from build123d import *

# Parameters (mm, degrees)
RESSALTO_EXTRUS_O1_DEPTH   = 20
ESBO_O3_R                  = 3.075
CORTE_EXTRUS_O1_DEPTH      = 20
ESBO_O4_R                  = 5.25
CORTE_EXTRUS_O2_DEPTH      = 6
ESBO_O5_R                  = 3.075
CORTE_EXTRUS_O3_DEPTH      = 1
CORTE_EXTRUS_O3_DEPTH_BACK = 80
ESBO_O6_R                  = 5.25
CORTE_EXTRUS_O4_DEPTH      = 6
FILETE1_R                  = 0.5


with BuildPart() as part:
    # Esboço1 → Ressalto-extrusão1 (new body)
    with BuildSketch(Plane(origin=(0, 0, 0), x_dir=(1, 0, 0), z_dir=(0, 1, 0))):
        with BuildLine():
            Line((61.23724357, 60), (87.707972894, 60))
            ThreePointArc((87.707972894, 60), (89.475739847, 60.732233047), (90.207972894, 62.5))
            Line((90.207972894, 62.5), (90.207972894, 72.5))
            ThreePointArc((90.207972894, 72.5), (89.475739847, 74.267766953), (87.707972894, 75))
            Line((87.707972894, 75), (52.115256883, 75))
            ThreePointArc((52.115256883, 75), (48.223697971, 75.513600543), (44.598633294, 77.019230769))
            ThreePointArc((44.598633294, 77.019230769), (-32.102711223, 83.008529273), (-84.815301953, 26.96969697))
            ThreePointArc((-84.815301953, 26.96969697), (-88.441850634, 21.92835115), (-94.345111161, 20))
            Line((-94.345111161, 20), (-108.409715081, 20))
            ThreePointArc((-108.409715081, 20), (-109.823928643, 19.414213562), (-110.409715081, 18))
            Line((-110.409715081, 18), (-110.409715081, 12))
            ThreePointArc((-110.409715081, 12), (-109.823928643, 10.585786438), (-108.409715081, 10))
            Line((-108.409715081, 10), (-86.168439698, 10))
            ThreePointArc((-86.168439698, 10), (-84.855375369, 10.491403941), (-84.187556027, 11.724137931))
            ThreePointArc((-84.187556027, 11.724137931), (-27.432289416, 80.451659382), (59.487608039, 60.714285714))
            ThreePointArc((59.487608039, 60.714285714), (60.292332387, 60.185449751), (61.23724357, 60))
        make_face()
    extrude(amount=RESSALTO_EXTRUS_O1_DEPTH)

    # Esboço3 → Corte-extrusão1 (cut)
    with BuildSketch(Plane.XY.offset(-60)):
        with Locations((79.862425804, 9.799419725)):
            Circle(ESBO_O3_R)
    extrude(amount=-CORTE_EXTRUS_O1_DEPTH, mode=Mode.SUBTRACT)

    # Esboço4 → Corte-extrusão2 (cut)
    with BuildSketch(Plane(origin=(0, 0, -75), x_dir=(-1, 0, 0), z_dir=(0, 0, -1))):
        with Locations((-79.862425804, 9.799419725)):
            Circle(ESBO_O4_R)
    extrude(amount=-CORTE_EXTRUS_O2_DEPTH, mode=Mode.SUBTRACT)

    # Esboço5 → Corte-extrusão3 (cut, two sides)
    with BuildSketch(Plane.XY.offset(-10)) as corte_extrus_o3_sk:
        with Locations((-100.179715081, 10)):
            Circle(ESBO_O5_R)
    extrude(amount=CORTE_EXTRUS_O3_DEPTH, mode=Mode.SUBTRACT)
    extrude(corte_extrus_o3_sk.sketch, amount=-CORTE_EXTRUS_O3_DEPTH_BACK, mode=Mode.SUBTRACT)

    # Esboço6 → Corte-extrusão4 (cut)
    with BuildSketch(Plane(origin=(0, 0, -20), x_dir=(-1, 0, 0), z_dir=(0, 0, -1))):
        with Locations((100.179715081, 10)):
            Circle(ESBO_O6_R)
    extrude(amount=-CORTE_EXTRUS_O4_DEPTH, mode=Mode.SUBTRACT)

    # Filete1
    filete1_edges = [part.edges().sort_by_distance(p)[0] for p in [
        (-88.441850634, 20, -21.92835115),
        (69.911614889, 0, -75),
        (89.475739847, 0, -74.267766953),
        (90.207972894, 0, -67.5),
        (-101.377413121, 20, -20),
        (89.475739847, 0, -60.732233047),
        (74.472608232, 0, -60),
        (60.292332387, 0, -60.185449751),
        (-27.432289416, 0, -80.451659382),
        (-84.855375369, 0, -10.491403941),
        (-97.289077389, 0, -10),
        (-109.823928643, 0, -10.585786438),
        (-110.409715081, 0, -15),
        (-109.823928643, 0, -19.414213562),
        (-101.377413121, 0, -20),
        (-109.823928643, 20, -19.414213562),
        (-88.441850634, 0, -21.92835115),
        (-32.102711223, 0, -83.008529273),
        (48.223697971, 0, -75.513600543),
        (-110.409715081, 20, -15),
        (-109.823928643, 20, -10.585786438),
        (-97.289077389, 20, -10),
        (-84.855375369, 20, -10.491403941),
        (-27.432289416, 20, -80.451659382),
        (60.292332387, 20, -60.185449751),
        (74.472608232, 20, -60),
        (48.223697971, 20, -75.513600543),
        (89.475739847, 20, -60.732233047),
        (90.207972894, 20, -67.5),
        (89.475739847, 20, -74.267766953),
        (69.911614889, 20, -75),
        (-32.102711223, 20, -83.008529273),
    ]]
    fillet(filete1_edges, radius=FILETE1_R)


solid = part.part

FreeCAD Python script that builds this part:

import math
import FreeCAD as App
import Part
import Sketcher
from FreeCAD import Vector
Q = App.Units.Quantity


def edges_at(feature, points):
    """Names of the edges that pass closest to the given points."""
    edges = feature.Shape.Edges
    near = lambda p: min(range(len(edges)), key=lambda i: edges[i].distToShape(Part.Vertex(*p))[0])
    return sorted({f"Edge{near(p) + 1}" for p in points})

doc = App.newDocument("Part")
params = doc.addObject("Spreadsheet::Sheet", "Params")
for row, (alias, value) in enumerate([
    ("sketch1_radius", "15 mm"),
    ("sketch1_radius2", "89 mm"),
    ("sketch1_radius3", "10 mm"),
    ("sketch1_radius4", "2 mm"),
    ("sketch1_radius5", "85 mm"),
    ("pad1_length", "20 mm"),
    ("sketch2_diameter", "6.15 mm"),
    ("pocket1_length", "20 mm"),
    ("sketch3_diameter", "10.5 mm"),
    ("pocket2_length", "6 mm"),
    ("sketch4_diameter", "6.15 mm"),
    ("sketch5_diameter", "10.5 mm"),
    ("pocket4_length", "6 mm"),
    ("fillet_radius", "0.5 mm"),
], start=1):
    params.set(f"A{row}", alias)
    params.set(f"B{row}", "=" + value)
    params.setAlias(f"B{row}", alias)

body = doc.addObject("PartDesign::Body", "Body")

sketch1 = doc.addObject("Sketcher::SketchObject", "Sketch")
body.addObject(sketch1)
sketch1.AttachmentSupport = (doc.XZ_Plane, [""])
sketch1.MapMode = "FlatFace"
sketch1.addGeometry(Part.LineSegment(Vector(61.2, -60, 0), Vector(87.7, -60, 0)), False)
sketch1.addGeometry(Part.ArcOfCircle(Part.Circle(Vector(87.7, -62.5, 0), Vector(0, 0, 1), 2.5), math.radians(0), math.radians(90)), False)
sketch1.addGeometry(Part.LineSegment(Vector(90.2, -62.5, 0), Vector(90.2, -72.5, 0)), False)
sketch1.addGeometry(Part.ArcOfCircle(Part.Circle(Vector(87.7, -72.5, 0), Vector(0, 0, 1), 2.5), math.radians(-90), math.radians(0)), False)
sketch1.addGeometry(Part.LineSegment(Vector(87.7, -75, 0), Vector(52.1, -75, 0)), False)
sketch1.addGeometry(Part.ArcOfCircle(Part.Circle(Vector(52.1, -90, 0), Vector(0, 0, 1), 15), math.radians(90), math.radians(120)), False)
sketch1.addGeometry(Part.ArcOfCircle(Part.Circle(Vector(0, 0, 0), Vector(0, 0, 1), 89), math.radians(-162), math.radians(-60)), False)
sketch1.addGeometry(Part.ArcOfCircle(Part.Circle(Vector(-94.3, -30, 0), Vector(0, 0, 1), 10), math.radians(18), math.radians(90)), False)
sketch1.addGeometry(Part.LineSegment(Vector(-94.3, -20, 0), Vector(-108.4, -20, 0)), False)
sketch1.addGeometry(Part.ArcOfCircle(Part.Circle(Vector(-108.4, -18, 0), Vector(0, 0, 1), 2), math.radians(-180), math.radians(-90)), False)
sketch1.addGeometry(Part.LineSegment(Vector(-110.4, -18, 0), Vector(-110.4, -12, 0)), False)
sketch1.addGeometry(Part.ArcOfCircle(Part.Circle(Vector(-108.4, -12, 0), Vector(0, 0, 1), 2), math.radians(90), math.radians(180)), False)
sketch1.addGeometry(Part.LineSegment(Vector(-108.4, -10, 0), Vector(-86.2, -10, 0)), False)
sketch1.addGeometry(Part.ArcOfCircle(Part.Circle(Vector(-86.2, -12, 0), Vector(0, 0, 1), 2), math.radians(8), math.radians(90)), False)
sketch1.addGeometry(Part.ArcOfCircle(Part.Circle(Vector(0, 0, 0), Vector(0, 0, 1), 85), math.radians(-172), math.radians(-46)), False)
sketch1.addGeometry(Part.ArcOfCircle(Part.Circle(Vector(61.2, -62.5, 0), Vector(0, 0, 1), 2.5), math.radians(90), math.radians(134)), False)
sketch1.addConstraint(Sketcher.Constraint("Tangent", 0, 2, 1, 2))
sketch1.addConstraint(Sketcher.Constraint("Tangent", 1, 1, 2, 1))
sketch1.addConstraint(Sketcher.Constraint("Tangent", 2, 2, 3, 2))
sketch1.addConstraint(Sketcher.Constraint("Tangent", 3, 1, 4, 1))
sketch1.addConstraint(Sketcher.Constraint("Tangent", 4, 2, 5, 1))
sketch1.addConstraint(Sketcher.Constraint("Tangent", 5, 2, 6, 2))
sketch1.addConstraint(Sketcher.Constraint("Tangent", 6, 1, 7, 1))
sketch1.addConstraint(Sketcher.Constraint("Tangent", 7, 2, 8, 1))
sketch1.addConstraint(Sketcher.Constraint("Tangent", 8, 2, 9, 2))
sketch1.addConstraint(Sketcher.Constraint("Tangent", 9, 1, 10, 1))
sketch1.addConstraint(Sketcher.Constraint("Tangent", 10, 2, 11, 2))
sketch1.addConstraint(Sketcher.Constraint("Tangent", 11, 1, 12, 1))
sketch1.addConstraint(Sketcher.Constraint("Tangent", 12, 2, 13, 2))
sketch1.addConstraint(Sketcher.Constraint("Tangent", 13, 1, 14, 1))
sketch1.addConstraint(Sketcher.Constraint("Tangent", 14, 2, 15, 2))
sketch1.addConstraint(Sketcher.Constraint("Tangent", 15, 1, 0, 1))
sketch1.addConstraint(Sketcher.Constraint("Horizontal", 0))
sketch1.addConstraint(Sketcher.Constraint("Vertical", 2))
sketch1.addConstraint(Sketcher.Constraint("Horizontal", 4))
sketch1.addConstraint(Sketcher.Constraint("Horizontal", 8))
sketch1.addConstraint(Sketcher.Constraint("Vertical", 10))
sketch1.addConstraint(Sketcher.Constraint("Horizontal", 12))
sketch1.addConstraint(Sketcher.Constraint("Coincident", 6, 3, -1, 1))
sketch1.addConstraint(Sketcher.Constraint("Coincident", 14, 3, -1, 1))
sketch1.addConstraint(Sketcher.Constraint("Equal", 1, 3))
sketch1.addConstraint(Sketcher.Constraint("Equal", 9, 11))
sketch1.addConstraint(Sketcher.Constraint("Equal", 11, 13))
sketch1.addConstraint(Sketcher.Constraint("Equal", 3, 15))
sketch1.addConstraint(Sketcher.Constraint("Radius", 5, Q("15 mm")))
sketch1.addConstraint(Sketcher.Constraint("Radius", 6, Q("89 mm")))
sketch1.addConstraint(Sketcher.Constraint("Radius", 7, Q("10 mm")))
sketch1.addConstraint(Sketcher.Constraint("Radius", 9, Q("2 mm")))
sketch1.addConstraint(Sketcher.Constraint("Radius", 14, Q("85 mm")))
sketch1.addConstraint(Sketcher.Constraint("Radius", 1, Q("2.5 mm")))
sketch1.addConstraint(Sketcher.Constraint("DistanceY", 2, 2, 2, 1, Q("10 mm")))
sketch1.addConstraint(Sketcher.Constraint("DistanceY", 10, 1, 10, 2, Q("6 mm")))
sketch1.addConstraint(Sketcher.Constraint("DistanceY", 5, 3, -1, 1, Q("90 mm")))
sketch1.addConstraint(Sketcher.Constraint("DistanceY", 7, 3, -1, 1, Q("30 mm")))
sketch1.addConstraint(Sketcher.Constraint("DistanceX", 0, 1, 0, 2, Q("26.470729 mm")))
sketch1.addConstraint(Sketcher.Constraint("DistanceX", 8, 2, 8, 1, Q("14.064604 mm")))
sketch1.setExpression("Constraints[28]", "Params.sketch1_radius")
sketch1.setExpression("Constraints[29]", "Params.sketch1_radius2")
sketch1.setExpression("Constraints[30]", "Params.sketch1_radius3")
sketch1.setExpression("Constraints[31]", "Params.sketch1_radius4")
sketch1.setExpression("Constraints[32]", "Params.sketch1_radius5")
pad1 = doc.addObject("PartDesign::Pad", "Pad")
body.addObject(pad1)
pad1.Profile = sketch1
pad1.setExpression("Length", "Params.pad1_length")
pad1.Reversed = True

sketch2 = doc.addObject("Sketcher::SketchObject", "Sketch001")
body.addObject(sketch2)
sketch2.AttachmentSupport = (doc.XY_Plane, [""])
sketch2.MapMode = "FlatFace"
sketch2.AttachmentOffset = App.Placement(Vector(0, 0, -60), App.Rotation())
sketch2.addGeometry(Part.Circle(Vector(79.9, 9.8, 0), Vector(0, 0, 1), 3.1), False)
sketch2.addConstraint(Sketcher.Constraint("Diameter", 0, Q("6.15 mm")))
sketch2.addConstraint(Sketcher.Constraint("DistanceY", -1, 1, 0, 3, Q("9.79942 mm")))
sketch2.addConstraint(Sketcher.Constraint("DistanceX", -1, 1, 0, 3, Q("79.862426 mm")))
sketch2.setExpression("Constraints[0]", "Params.sketch2_diameter")
pocket1 = doc.addObject("PartDesign::Pocket", "Pocket")
body.addObject(pocket1)
pocket1.Profile = sketch2
pocket1.setExpression("Length", "Params.pocket1_length")

sketch3 = doc.addObject("Sketcher::SketchObject", "Sketch002")
body.addObject(sketch3)
sketch3.AttachmentSupport = (doc.XY_Plane, [""])
sketch3.MapMode = "FlatFace"
sketch3.AttachmentOffset = App.Placement(Vector(0, 0, -75), App.Rotation())
sketch3.addGeometry(Part.Circle(Vector(80, 10, 0), Vector(0, 0, 1), 5), False)
sketch3.addConstraint(Sketcher.Constraint("Diameter", 0, Q("10.5 mm")))
sketch3.addConstraint(Sketcher.Constraint("DistanceY", -1, 1, 0, 3, Q("9.79942 mm")))
sketch3.addConstraint(Sketcher.Constraint("DistanceX", -1, 1, 0, 3, Q("79.862426 mm")))
sketch3.setExpression("Constraints[0]", "Params.sketch3_diameter")
pocket2 = doc.addObject("PartDesign::Pocket", "Pocket001")
body.addObject(pocket2)
pocket2.Profile = sketch3
pocket2.setExpression("Length", "Params.pocket2_length")
pocket2.Reversed = True

sketch4 = doc.addObject("Sketcher::SketchObject", "Sketch003")
body.addObject(sketch4)
sketch4.AttachmentSupport = (doc.XY_Plane, [""])
sketch4.MapMode = "FlatFace"
sketch4.AttachmentOffset = App.Placement(Vector(0, 0, -10), App.Rotation())
sketch4.addGeometry(Part.Circle(Vector(-100.2, 10, 0), Vector(0, 0, 1), 3.1), False)
sketch4.addConstraint(Sketcher.Constraint("Diameter", 0, Q("6.15 mm")))
sketch4.addConstraint(Sketcher.Constraint("DistanceY", -1, 1, 0, 3, Q("10 mm")))
sketch4.addConstraint(Sketcher.Constraint("DistanceX", 0, 3, -1, 1, Q("100.179715 mm")))
sketch4.setExpression("Constraints[0]", "Params.sketch4_diameter")
pocket3 = doc.addObject("PartDesign::Pocket", "Pocket002")
body.addObject(pocket3)
pocket3.Profile = sketch4
pocket3.Type = "ThroughAll"
pocket3.Midplane = True

sketch5 = doc.addObject("Sketcher::SketchObject", "Sketch004")
body.addObject(sketch5)
sketch5.AttachmentSupport = (doc.XY_Plane, [""])
sketch5.MapMode = "FlatFace"
sketch5.AttachmentOffset = App.Placement(Vector(0, 0, -20), App.Rotation())
sketch5.addGeometry(Part.Circle(Vector(-100, 10, 0), Vector(0, 0, 1), 5), False)
sketch5.addConstraint(Sketcher.Constraint("Diameter", 0, Q("10.5 mm")))
sketch5.addConstraint(Sketcher.Constraint("DistanceY", -1, 1, 0, 3, Q("10 mm")))
sketch5.addConstraint(Sketcher.Constraint("DistanceX", 0, 3, -1, 1, Q("100.179715 mm")))
sketch5.setExpression("Constraints[0]", "Params.sketch5_diameter")
pocket4 = doc.addObject("PartDesign::Pocket", "Pocket003")
body.addObject(pocket4)
pocket4.Profile = sketch5
pocket4.setExpression("Length", "Params.pocket4_length")
pocket4.Reversed = True
doc.recompute()

fillet = doc.addObject("PartDesign::Fillet", "Fillet")
body.addObject(fillet)
fillet.Base = (pocket4, edges_at(pocket4, [
    (-88.442, 20, -21.928),
    (69.912, 0, -75),
    (89.476, 0, -74.268),
    (90.208, 0, -67.5),
    (-101.377, 20, -20),
    (89.476, 0, -60.732),
    (74.473, 0, -60),
    (60.292, 0, -60.185),
    (-27.432, 0, -80.452),
    (-84.855, 0, -10.491),
    (-97.289, 0, -10),
    (-109.824, 0, -10.586),
    (-110.41, 0, -15),
    (-109.824, 0, -19.414),
    (-101.377, 0, -20),
    (-109.824, 20, -19.414),
    (-88.442, 0, -21.928),
    (-32.103, 0, -83.009),
    (48.224, 0, -75.514),
    (-110.41, 20, -15),
    (-109.824, 20, -10.586),
    (-97.289, 20, -10),
    (-84.855, 20, -10.491),
    (-27.432, 20, -80.452),
    (60.292, 20, -60.185),
    (74.473, 20, -60),
    (48.224, 20, -75.514),
    (89.476, 20, -60.732),
    (90.208, 20, -67.5),
    (89.476, 20, -74.268),
    (69.912, 20, -75),
    (-32.103, 20, -83.009),
]))
fillet.setExpression("Radius", "Params.fillet_radius")

doc.recompute()
